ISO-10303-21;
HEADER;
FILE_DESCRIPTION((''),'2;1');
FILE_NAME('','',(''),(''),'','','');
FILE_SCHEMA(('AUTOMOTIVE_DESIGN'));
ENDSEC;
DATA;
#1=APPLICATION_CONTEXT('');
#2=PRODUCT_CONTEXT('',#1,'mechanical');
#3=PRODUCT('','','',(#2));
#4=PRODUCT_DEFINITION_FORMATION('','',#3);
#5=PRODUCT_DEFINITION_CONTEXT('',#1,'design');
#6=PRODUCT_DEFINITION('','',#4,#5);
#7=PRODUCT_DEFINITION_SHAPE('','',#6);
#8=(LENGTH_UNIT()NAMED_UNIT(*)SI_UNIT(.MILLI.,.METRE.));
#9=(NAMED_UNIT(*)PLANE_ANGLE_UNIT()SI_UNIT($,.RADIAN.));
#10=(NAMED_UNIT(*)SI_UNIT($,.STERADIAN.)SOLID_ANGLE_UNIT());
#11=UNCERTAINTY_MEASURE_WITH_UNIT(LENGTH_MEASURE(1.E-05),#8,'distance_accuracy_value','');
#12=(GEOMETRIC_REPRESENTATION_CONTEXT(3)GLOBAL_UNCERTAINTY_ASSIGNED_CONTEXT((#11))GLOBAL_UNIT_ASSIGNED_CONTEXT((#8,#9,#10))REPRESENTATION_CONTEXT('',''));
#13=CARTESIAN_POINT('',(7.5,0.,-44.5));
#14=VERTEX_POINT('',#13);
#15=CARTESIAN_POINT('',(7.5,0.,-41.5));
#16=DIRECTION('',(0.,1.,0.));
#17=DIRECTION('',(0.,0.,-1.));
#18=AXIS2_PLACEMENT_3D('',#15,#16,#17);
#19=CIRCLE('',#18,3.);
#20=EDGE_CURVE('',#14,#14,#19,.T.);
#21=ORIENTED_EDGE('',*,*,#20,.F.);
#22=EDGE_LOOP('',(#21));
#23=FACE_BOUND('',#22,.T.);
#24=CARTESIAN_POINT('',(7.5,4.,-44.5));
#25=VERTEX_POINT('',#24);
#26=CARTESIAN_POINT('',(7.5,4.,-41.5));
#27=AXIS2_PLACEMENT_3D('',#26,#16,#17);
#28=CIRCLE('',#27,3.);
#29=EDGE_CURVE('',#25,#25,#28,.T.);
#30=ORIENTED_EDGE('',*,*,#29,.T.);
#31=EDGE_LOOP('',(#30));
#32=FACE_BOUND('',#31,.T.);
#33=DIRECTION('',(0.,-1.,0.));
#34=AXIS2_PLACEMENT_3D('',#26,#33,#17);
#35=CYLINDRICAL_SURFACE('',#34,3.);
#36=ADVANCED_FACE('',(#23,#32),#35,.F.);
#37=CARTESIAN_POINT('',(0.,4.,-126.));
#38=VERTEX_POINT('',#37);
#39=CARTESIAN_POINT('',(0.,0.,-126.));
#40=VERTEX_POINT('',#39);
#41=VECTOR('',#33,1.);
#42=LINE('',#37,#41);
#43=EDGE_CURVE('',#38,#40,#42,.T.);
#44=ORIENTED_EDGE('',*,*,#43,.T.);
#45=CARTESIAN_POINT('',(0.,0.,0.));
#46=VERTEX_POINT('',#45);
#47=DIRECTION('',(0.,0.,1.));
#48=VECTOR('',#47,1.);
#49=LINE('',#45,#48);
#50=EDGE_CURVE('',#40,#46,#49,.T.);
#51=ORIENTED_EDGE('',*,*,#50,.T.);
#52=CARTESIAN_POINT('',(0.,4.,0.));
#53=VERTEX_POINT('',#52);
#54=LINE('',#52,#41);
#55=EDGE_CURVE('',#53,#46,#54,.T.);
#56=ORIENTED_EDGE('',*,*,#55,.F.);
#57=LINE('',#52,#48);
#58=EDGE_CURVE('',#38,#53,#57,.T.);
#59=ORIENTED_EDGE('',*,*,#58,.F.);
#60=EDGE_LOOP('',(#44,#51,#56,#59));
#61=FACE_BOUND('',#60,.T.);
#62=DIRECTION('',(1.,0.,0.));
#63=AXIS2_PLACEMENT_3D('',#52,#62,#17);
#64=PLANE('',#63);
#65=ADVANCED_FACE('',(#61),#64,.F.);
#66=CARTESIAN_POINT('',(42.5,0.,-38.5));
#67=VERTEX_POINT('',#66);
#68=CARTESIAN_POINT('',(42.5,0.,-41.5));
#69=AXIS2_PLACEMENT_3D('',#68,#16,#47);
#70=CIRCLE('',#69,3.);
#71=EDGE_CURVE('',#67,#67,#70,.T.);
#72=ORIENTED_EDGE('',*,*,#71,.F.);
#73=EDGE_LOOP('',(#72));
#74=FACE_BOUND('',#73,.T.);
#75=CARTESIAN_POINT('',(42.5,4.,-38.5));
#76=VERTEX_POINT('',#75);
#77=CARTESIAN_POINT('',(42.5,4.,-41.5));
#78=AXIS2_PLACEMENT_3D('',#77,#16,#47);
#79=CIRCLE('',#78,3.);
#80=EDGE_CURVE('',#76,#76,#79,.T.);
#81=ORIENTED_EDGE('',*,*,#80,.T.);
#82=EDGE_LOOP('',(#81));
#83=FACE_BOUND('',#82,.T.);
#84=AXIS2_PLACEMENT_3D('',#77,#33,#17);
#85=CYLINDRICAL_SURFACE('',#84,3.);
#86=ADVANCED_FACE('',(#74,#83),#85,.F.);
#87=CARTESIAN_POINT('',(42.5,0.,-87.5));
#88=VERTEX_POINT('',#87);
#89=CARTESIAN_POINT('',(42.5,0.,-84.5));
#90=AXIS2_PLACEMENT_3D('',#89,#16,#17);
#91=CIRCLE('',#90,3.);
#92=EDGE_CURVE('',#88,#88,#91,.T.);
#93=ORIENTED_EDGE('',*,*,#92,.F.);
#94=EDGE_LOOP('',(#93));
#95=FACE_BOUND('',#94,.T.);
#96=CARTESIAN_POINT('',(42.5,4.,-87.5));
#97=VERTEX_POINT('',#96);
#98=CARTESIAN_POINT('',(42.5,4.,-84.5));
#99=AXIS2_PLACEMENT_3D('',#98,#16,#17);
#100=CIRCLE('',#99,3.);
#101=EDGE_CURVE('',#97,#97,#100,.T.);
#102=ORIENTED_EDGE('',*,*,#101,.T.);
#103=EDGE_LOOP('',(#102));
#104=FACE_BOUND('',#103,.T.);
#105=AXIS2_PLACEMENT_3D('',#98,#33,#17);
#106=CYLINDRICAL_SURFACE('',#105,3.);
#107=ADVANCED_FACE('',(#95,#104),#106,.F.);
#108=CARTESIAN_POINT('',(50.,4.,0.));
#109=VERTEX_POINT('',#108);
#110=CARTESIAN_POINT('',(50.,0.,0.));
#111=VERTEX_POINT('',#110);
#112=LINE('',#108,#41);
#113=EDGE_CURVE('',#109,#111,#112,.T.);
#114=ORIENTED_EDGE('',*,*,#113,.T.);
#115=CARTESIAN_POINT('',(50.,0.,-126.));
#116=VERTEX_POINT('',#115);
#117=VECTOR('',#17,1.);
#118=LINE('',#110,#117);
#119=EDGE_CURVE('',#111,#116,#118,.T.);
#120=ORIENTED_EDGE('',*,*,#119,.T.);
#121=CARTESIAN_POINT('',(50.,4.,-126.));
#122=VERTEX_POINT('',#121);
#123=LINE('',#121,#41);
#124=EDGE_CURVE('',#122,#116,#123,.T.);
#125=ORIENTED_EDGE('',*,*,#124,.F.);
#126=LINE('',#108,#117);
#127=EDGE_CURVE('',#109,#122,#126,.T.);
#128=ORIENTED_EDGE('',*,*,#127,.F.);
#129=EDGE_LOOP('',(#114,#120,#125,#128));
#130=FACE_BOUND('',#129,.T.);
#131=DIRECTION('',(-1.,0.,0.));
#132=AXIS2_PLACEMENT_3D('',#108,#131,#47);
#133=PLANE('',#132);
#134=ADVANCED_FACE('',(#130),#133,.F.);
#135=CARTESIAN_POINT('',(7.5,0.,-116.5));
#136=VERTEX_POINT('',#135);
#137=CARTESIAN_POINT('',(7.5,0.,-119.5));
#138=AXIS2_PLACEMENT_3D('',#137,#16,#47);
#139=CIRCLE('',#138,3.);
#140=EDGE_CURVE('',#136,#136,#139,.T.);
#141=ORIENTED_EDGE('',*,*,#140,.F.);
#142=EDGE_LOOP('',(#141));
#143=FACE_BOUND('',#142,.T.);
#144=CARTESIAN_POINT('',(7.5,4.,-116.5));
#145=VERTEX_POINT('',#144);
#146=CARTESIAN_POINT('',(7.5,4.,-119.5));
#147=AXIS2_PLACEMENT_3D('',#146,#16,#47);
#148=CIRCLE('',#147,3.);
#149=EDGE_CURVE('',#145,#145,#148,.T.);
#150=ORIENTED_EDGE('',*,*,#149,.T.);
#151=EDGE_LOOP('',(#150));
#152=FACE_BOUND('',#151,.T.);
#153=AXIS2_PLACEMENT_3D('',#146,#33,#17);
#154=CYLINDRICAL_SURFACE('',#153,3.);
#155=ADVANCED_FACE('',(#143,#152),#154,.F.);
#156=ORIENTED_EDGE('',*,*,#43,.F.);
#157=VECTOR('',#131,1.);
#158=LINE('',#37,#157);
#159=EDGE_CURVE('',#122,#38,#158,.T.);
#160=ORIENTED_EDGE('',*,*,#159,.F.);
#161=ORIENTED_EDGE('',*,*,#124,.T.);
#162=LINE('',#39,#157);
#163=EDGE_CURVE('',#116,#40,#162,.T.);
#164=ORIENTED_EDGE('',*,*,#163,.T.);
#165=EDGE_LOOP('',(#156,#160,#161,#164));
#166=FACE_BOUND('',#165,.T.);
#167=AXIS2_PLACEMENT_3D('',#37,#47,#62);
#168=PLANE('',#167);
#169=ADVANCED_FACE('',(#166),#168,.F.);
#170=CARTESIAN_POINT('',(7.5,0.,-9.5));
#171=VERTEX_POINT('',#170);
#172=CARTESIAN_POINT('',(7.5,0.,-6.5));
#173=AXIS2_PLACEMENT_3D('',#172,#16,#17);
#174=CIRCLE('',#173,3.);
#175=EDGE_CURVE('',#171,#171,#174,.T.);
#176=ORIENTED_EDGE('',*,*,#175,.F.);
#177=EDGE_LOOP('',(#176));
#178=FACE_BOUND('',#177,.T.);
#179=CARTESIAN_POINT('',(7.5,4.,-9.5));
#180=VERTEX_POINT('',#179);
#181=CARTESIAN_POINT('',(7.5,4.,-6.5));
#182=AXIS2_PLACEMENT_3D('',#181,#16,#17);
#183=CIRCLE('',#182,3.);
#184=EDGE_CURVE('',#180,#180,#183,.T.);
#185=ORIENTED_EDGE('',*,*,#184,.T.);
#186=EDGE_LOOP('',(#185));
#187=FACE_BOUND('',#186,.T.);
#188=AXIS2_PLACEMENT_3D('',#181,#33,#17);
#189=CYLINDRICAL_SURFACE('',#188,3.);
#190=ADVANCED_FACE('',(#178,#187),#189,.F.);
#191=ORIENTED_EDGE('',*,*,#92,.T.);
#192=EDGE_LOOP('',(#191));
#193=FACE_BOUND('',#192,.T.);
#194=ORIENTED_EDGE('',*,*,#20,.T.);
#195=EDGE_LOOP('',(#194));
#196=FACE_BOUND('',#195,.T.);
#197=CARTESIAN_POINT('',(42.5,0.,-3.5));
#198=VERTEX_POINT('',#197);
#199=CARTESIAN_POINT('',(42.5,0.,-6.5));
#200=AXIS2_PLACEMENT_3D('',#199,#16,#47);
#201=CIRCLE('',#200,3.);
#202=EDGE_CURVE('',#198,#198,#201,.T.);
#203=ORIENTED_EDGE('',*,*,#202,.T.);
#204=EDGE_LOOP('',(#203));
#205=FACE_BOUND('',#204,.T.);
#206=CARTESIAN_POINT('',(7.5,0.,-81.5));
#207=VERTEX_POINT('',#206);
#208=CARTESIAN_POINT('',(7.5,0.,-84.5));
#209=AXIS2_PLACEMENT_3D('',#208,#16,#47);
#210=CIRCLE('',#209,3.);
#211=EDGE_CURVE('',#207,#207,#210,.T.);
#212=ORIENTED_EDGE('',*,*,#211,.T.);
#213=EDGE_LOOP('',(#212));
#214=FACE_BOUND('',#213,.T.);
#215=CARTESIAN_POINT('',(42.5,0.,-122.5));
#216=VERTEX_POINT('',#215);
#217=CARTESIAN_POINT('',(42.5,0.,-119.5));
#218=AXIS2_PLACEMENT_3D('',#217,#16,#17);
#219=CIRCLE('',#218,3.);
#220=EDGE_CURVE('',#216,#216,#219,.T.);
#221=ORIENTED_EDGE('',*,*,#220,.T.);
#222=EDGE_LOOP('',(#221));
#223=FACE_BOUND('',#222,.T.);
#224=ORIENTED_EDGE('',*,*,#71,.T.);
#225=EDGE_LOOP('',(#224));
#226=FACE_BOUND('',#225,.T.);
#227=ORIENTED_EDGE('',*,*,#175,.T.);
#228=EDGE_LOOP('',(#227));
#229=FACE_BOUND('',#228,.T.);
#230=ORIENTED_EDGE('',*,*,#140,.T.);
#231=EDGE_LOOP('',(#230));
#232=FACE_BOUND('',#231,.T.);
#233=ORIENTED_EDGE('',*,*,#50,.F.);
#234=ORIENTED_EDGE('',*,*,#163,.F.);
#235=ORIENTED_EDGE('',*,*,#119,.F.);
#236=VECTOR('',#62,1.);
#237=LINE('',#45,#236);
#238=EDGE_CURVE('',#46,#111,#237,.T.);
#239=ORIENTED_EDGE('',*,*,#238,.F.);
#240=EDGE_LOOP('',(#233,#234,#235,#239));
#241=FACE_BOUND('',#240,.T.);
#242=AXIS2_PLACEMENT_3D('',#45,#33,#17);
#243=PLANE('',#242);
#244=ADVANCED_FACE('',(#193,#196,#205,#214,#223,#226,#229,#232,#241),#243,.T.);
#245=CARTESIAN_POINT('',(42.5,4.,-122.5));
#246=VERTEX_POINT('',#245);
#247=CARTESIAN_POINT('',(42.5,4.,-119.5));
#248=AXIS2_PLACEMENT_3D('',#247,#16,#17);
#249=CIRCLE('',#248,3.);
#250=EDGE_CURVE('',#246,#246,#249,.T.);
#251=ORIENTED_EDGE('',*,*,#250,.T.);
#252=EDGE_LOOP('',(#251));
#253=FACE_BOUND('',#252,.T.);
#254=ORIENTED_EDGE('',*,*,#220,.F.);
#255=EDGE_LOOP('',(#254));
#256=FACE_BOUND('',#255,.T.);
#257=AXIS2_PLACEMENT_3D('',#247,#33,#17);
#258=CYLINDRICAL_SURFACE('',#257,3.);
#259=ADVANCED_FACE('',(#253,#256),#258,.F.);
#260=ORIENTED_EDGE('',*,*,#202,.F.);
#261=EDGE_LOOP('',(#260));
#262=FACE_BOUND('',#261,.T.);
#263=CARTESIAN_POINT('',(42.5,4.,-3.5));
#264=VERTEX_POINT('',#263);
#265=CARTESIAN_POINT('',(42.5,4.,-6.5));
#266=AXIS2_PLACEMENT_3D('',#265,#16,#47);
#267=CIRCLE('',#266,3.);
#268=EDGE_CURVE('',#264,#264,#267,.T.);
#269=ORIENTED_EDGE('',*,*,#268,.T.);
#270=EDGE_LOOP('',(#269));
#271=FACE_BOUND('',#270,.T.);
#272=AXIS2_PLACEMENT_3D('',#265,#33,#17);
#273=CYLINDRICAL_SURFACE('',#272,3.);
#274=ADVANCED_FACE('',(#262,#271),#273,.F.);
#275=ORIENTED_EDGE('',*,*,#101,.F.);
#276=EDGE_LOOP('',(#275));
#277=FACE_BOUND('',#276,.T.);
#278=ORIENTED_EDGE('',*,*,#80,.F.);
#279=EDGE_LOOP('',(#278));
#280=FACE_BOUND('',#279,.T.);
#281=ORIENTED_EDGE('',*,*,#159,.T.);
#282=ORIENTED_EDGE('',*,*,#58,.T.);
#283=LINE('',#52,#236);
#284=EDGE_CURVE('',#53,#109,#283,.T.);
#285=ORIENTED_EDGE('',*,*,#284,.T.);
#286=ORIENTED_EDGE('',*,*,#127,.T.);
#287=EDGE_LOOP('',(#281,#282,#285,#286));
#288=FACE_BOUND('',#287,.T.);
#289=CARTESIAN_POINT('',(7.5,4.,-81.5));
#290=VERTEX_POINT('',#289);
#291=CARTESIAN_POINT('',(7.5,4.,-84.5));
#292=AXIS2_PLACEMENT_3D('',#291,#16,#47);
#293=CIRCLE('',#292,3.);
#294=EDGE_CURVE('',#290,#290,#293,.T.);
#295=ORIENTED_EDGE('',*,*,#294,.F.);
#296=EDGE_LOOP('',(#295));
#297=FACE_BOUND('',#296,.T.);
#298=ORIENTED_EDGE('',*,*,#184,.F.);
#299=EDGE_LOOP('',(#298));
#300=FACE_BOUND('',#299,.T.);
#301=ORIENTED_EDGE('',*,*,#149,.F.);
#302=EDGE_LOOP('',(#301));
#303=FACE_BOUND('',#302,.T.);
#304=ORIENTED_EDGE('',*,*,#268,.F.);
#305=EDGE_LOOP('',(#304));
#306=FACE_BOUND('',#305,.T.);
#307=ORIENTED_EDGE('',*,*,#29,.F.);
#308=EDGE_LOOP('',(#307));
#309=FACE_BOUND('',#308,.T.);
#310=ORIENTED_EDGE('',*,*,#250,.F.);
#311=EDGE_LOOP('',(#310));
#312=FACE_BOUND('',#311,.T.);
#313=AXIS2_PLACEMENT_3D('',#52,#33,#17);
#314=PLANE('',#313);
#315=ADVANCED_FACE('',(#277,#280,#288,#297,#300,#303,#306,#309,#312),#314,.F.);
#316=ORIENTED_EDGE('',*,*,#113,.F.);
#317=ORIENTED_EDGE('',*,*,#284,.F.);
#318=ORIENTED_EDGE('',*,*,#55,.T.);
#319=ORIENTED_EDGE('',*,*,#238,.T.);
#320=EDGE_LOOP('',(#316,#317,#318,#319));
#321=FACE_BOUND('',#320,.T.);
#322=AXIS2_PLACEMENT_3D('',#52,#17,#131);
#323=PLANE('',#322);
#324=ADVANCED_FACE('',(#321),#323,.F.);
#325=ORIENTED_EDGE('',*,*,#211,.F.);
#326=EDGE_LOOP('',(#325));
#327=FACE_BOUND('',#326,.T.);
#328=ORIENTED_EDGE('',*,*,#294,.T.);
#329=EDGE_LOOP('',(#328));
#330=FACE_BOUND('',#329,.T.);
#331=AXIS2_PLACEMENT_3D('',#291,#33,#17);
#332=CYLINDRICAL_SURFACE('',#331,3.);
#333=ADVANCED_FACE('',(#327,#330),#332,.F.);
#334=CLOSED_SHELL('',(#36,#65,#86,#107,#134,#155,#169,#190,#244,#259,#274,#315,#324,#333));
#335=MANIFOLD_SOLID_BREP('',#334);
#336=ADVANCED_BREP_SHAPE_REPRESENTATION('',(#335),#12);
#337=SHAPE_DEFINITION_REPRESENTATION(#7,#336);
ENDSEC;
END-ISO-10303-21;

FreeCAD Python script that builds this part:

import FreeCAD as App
import Part
import Sketcher

doc = App.newDocument("Part")
body = doc.addObject("PartDesign::Body", "Body")

# Sketch on XZ plane
sketch1 = body.newObject("Sketcher::SketchObject", "Sketch")
sketch1.AttachmentSupport = (doc.getObject("XZ_Plane"), [""])
sketch1.MapMode = "FlatFace"
sketch1.addGeometry([
    Part.LineSegment(App.Vector(0, -126, 0), App.Vector(0, 0, 0)),  # 0
    Part.LineSegment(App.Vector(0, 0, 0), App.Vector(50, 0, 0)),  # 1
    Part.LineSegment(App.Vector(50, 0, 0), App.Vector(50, -126, 0)),  # 2
    Part.LineSegment(App.Vector(50, -126, 0), App.Vector(0, -126, 0)),  # 3
    Part.Circle(App.Vector(7.5, -6.5, 0), App.Vector(0, 0, 1), 3),  # 4
    Part.Circle(App.Vector(7.5, -41.5, 0), App.Vector(0, 0, 1), 3),  # 5
    Part.Circle(App.Vector(42.5, -6.5, 0), App.Vector(0, 0, 1), 3),  # 6
    Part.Circle(App.Vector(42.5, -41.5, 0), App.Vector(0, 0, 1), 3),  # 7
    Part.Circle(App.Vector(7.5, -84.5, 0), App.Vector(0, 0, 1), 3),  # 8
    Part.Circle(App.Vector(7.5, -119.5, 0), App.Vector(0, 0, 1), 3),  # 9
    Part.Circle(App.Vector(42.5, -84.5, 0), App.Vector(0, 0, 1), 3),  # 10
    Part.Circle(App.Vector(42.5, -119.5, 0), App.Vector(0, 0, 1), 3),  # 11
], False)
sketch1.addConstraint([
    Sketcher.Constraint("Coincident", 0, 2, 1, 1),
    Sketcher.Constraint("Coincident", 1, 2, 2, 1),
    Sketcher.Constraint("Coincident", 2, 2, 3, 1),
    Sketcher.Constraint("Coincident", 3, 2, 0, 1),
    Sketcher.Constraint("Vertical", 0),
    Sketcher.Constraint("Horizontal", 1),
    Sketcher.Constraint("Vertical", 2),
    Sketcher.Constraint("Horizontal", 3),
    Sketcher.Constraint("Coincident", 0, 2, -1, 1),
    Sketcher.Constraint("Equal", 4, 5),
    Sketcher.Constraint("Equal", 5, 6),
    Sketcher.Constraint("Equal", 6, 7),
    Sketcher.Constraint("Equal", 7, 8),
    Sketcher.Constraint("Equal", 8, 9),
    Sketcher.Constraint("Equal", 9, 10),
    Sketcher.Constraint("Equal", 10, 11),
    Sketcher.Constraint("Horizontal", 4, 3, 6, 3),
    Sketcher.Constraint("Horizontal", 5, 3, 7, 3),
    Sketcher.Constraint("Horizontal", 8, 3, 10, 3),
    Sketcher.Constraint("Horizontal", 9, 3, 11, 3),
    Sketcher.Constraint("Vertical", 4, 3, 5, 3),
    Sketcher.Constraint("Vertical", 6, 3, 7, 3),
    Sketcher.Constraint("Vertical", 5, 3, 8, 3),
    Sketcher.Constraint("Vertical", 8, 3, 9, 3),
    Sketcher.Constraint("Vertical", 7, 3, 10, 3),
    Sketcher.Constraint("Vertical", 10, 3, 11, 3),
    Sketcher.Constraint("Diameter", 4, 6.0),
    Sketcher.Constraint("DistanceX", 1, 1, 1, 2, 50.0),
    Sketcher.Constraint("DistanceY", 0, 1, 0, 2, 126.0),
    Sketcher.Constraint("DistanceY", 5, 3, 4, 3, 35.0),
    Sketcher.Constraint("DistanceX", 4, 3, 6, 3, 35.0),
    Sketcher.Constraint("DistanceY", 8, 3, 5, 3, 43.0),
    Sketcher.Constraint("DistanceY", 9, 3, 8, 3, 35.0),
    Sketcher.Constraint("DistanceX", -1, 1, 4, 3, 7.5),
    Sketcher.Constraint("DistanceY", 4, 3, -1, 1, 6.5),
])
pad1 = body.newObject("PartDesign::Pad", "Pad")
pad1.Profile = sketch1
pad1.Length = 4
pad1.Reversed = True

doc.recompute()
